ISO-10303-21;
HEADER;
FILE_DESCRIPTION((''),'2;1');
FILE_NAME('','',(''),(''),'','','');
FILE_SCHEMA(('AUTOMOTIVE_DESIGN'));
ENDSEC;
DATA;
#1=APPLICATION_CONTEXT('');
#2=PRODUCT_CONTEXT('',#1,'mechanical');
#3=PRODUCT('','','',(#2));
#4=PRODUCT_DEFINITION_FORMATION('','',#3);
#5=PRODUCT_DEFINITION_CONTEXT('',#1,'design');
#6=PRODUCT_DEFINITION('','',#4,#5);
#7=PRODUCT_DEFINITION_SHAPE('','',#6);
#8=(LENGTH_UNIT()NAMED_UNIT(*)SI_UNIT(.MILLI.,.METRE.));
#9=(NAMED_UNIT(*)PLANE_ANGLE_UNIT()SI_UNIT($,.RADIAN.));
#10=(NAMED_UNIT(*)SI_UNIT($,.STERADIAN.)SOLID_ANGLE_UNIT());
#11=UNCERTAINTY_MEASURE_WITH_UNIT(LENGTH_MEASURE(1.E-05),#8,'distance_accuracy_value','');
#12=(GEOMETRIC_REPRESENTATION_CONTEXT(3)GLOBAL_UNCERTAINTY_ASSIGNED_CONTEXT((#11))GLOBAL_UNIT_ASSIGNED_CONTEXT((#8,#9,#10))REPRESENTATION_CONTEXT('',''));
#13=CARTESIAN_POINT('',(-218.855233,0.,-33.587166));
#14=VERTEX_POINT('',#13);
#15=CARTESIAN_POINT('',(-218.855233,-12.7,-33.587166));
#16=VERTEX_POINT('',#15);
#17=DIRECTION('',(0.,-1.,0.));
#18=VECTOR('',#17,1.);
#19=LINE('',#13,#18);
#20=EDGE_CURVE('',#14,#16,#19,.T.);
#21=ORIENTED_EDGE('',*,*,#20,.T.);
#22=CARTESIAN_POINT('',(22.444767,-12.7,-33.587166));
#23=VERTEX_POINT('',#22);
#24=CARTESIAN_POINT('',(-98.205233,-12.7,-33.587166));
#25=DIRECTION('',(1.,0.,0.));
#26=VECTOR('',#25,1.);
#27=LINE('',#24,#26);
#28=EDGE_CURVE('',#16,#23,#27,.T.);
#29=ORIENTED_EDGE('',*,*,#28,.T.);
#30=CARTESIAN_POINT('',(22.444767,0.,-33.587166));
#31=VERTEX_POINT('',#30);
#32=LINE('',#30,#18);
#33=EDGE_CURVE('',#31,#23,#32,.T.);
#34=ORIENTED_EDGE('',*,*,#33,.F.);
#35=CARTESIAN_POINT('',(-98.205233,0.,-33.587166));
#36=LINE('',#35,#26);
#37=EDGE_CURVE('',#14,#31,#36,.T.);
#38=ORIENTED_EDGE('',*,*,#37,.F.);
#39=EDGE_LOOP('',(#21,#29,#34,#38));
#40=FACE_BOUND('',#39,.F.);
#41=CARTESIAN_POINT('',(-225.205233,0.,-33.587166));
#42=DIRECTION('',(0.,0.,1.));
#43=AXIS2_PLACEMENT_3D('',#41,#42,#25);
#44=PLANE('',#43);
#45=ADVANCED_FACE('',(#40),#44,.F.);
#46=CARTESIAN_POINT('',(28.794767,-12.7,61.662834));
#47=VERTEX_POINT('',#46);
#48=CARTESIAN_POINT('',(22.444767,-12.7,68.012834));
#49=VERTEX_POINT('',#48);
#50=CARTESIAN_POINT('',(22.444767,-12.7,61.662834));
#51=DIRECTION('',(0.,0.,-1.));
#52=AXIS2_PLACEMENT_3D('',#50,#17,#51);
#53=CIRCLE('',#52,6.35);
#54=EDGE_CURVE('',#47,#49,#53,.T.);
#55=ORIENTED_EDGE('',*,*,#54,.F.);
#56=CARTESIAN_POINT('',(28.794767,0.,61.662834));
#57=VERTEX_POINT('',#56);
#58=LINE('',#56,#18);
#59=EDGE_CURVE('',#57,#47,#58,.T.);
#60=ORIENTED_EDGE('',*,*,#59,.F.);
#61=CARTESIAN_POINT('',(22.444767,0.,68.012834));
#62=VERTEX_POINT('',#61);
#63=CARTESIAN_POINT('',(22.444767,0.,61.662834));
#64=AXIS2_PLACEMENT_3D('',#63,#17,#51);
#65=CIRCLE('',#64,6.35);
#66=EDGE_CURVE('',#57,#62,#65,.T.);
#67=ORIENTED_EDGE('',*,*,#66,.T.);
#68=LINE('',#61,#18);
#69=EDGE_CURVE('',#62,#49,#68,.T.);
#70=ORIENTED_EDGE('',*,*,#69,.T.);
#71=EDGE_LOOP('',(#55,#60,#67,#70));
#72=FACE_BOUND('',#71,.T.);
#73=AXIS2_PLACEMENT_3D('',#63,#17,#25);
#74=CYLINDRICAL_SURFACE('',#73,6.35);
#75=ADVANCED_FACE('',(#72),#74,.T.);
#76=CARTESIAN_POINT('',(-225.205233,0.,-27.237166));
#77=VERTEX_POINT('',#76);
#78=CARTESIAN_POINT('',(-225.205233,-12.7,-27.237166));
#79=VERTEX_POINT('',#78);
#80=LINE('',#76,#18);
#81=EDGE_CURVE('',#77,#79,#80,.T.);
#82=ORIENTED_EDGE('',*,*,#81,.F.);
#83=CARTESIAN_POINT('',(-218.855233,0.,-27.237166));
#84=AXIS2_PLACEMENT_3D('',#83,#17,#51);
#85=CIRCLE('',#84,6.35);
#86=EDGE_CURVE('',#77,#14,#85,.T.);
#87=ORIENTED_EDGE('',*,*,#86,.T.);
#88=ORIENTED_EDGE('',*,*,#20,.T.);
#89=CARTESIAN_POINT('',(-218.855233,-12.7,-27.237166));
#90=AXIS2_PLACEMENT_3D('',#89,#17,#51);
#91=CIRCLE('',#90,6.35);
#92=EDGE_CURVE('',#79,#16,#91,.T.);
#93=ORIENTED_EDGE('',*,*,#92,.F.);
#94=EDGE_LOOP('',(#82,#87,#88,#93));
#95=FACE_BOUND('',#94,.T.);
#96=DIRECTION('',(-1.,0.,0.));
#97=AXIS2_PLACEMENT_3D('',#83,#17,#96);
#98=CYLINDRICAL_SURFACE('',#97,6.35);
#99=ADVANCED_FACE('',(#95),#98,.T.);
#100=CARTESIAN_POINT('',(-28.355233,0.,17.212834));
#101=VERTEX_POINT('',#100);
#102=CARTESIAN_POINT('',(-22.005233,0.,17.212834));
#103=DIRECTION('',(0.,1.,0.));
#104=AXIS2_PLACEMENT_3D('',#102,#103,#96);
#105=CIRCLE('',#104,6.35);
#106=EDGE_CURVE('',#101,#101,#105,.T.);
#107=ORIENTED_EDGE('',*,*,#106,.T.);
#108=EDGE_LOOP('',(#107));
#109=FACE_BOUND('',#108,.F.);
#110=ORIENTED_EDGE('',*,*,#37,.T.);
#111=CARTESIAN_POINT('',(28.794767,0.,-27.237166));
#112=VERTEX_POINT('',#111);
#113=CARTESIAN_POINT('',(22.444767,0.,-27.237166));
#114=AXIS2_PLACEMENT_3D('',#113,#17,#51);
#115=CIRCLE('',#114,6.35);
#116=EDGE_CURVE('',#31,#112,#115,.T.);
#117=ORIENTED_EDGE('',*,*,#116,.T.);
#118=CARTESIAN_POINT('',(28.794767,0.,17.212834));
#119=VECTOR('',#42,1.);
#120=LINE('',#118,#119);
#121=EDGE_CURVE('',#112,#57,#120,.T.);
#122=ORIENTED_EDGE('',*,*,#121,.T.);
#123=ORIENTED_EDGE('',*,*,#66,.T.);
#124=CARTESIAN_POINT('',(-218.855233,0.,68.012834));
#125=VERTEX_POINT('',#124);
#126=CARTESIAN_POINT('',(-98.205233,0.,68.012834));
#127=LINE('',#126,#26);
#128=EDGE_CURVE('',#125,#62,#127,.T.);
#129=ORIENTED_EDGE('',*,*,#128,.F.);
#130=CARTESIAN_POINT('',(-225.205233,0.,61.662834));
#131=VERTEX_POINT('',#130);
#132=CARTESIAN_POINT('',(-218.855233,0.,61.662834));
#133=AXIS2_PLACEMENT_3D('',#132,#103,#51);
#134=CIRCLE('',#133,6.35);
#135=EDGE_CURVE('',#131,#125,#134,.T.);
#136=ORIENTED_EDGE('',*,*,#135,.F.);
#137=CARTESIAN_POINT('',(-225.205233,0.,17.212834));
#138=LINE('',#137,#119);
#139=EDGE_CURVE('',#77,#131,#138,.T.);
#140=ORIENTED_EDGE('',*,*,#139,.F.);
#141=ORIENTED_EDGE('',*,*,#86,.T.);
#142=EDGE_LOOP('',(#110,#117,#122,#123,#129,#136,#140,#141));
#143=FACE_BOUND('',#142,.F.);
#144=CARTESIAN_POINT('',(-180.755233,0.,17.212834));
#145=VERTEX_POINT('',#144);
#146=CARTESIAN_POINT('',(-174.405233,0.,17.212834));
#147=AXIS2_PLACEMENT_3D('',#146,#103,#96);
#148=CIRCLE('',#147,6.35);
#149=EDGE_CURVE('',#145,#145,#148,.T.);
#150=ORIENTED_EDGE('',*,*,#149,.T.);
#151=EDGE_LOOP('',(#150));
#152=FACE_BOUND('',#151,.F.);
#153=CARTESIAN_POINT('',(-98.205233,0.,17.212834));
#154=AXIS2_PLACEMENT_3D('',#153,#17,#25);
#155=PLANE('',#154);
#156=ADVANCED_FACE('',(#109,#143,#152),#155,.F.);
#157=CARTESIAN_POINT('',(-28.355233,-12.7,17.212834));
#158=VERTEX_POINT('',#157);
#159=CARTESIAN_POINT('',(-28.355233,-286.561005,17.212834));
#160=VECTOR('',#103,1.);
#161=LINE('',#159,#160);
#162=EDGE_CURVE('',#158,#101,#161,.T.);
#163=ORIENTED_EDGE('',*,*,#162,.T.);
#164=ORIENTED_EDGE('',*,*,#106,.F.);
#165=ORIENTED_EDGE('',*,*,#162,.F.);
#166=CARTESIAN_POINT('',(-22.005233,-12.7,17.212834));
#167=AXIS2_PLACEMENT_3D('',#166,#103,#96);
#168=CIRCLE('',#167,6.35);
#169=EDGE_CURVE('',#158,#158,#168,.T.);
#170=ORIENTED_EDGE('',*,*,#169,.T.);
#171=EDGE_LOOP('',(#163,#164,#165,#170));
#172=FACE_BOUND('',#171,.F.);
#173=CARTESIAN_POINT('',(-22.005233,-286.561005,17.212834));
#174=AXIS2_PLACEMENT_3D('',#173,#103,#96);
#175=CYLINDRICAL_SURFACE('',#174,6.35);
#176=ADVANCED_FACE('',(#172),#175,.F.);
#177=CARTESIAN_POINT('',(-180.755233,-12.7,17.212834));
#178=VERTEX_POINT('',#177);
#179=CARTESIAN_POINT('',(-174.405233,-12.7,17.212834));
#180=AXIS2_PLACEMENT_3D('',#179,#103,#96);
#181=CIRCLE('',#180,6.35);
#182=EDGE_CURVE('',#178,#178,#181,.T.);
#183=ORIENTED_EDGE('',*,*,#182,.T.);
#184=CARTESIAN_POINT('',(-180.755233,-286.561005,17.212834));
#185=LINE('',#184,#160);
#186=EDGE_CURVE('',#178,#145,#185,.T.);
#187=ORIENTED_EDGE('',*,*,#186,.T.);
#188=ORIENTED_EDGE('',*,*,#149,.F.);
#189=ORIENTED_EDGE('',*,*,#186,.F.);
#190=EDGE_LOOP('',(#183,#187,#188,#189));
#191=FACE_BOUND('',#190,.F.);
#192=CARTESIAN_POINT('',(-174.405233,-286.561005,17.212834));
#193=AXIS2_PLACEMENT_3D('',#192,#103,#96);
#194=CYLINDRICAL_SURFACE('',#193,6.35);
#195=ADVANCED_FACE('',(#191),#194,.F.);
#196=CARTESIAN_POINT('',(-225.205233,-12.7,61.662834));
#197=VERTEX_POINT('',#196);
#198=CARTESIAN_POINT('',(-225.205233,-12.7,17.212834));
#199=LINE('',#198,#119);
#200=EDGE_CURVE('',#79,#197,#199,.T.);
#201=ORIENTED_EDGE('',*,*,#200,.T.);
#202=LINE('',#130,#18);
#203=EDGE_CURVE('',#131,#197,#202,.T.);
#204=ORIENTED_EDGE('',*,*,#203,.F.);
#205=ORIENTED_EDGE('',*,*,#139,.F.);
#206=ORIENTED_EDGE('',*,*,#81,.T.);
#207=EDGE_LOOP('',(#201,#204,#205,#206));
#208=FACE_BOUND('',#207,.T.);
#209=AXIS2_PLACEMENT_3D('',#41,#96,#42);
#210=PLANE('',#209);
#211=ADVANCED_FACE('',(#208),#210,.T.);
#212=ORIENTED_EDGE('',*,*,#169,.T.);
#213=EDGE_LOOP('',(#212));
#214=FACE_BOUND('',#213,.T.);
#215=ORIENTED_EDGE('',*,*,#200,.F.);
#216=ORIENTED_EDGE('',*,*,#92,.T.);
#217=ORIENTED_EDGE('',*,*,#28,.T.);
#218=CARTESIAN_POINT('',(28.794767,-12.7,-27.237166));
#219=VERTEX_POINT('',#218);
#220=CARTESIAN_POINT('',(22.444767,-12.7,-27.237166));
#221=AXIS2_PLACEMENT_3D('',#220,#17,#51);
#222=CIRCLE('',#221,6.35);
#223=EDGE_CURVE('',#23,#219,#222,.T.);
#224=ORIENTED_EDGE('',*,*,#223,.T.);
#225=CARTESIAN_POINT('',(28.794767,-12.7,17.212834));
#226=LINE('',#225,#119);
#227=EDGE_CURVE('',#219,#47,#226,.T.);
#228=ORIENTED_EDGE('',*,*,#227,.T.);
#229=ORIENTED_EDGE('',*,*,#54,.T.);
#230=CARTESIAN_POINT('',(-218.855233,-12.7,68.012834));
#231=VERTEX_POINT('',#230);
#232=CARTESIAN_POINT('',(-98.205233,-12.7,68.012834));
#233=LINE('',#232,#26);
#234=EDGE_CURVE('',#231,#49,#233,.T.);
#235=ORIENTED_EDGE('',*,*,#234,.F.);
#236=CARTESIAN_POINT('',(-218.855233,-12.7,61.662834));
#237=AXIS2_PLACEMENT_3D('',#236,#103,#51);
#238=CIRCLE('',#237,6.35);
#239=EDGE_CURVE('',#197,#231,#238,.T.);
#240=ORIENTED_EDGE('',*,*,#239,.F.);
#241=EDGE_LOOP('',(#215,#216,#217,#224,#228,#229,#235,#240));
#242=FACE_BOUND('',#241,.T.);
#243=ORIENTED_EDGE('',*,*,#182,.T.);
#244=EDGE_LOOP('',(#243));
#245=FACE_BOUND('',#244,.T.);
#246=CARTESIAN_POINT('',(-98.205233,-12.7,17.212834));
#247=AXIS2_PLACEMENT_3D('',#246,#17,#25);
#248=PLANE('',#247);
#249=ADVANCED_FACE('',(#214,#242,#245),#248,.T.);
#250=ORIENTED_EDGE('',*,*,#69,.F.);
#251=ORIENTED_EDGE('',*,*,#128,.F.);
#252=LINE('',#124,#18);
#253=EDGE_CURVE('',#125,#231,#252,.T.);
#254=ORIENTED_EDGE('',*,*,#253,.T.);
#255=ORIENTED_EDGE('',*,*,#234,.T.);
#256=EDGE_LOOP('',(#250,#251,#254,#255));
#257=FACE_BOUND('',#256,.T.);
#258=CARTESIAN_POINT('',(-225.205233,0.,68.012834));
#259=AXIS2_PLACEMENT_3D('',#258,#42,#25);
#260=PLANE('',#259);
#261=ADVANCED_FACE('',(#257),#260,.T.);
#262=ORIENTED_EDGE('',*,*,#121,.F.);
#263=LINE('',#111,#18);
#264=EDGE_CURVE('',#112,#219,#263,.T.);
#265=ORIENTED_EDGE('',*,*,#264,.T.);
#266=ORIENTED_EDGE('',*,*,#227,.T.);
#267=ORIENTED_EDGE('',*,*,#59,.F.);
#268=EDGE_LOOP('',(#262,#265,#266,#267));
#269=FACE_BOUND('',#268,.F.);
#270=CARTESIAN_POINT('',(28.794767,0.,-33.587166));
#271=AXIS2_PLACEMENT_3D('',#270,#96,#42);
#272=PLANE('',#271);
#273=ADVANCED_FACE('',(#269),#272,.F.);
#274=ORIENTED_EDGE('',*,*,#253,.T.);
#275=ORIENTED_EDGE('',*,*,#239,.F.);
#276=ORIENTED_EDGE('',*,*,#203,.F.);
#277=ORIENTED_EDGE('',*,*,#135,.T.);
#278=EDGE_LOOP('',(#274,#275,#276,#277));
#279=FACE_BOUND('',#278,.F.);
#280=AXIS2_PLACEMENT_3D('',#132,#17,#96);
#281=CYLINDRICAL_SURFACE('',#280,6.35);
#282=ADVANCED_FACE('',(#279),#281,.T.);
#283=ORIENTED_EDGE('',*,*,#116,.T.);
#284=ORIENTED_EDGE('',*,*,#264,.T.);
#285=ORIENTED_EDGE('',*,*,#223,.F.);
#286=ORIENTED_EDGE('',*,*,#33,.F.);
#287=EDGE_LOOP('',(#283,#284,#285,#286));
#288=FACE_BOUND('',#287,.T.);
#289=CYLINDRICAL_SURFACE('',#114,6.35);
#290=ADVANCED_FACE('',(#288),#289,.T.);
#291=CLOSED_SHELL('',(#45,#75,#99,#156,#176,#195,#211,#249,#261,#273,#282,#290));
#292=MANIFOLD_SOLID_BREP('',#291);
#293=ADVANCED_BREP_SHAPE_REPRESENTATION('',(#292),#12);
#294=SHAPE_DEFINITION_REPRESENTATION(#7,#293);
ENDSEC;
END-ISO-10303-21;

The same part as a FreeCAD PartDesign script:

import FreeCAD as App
import Part
import Sketcher
from FreeCAD import Vector
Q = App.Units.Quantity


def edges_at(feature, points):
    """Names of the edges that pass closest to the given points."""
    edges = feature.Shape.Edges
    near = lambda p: min(range(len(edges)), key=lambda i: edges[i].distToShape(Part.Vertex(*p))[0])
    return sorted({f"Edge{near(p) + 1}" for p in points})

doc = App.newDocument("Part")
body = doc.addObject("PartDesign::Body", "Body")

# Sketch on XZ plane
sketch1 = doc.addObject("Sketcher::SketchObject", "Sketch")
body.addObject(sketch1)
sketch1.AttachmentSupport = (doc.XZ_Plane, [""])
sketch1.MapMode = "FlatFace"
sketch1.addGeometry(Part.LineSegment(Vector(-225, 68, 0), Vector(-225, -34, 0)), False)
sketch1.addGeometry(Part.LineSegment(Vector(-225, -34, 0), Vector(29, -34, 0)), False)
sketch1.addGeometry(Part.LineSegment(Vector(29, -34, 0), Vector(29, 68, 0)), False)
sketch1.addGeometry(Part.LineSegment(Vector(29, 68, 0), Vector(-225, 68, 0)), False)
sketch1.addConstraint(Sketcher.Constraint("Coincident", 0, 2, 1, 1))
sketch1.addConstraint(Sketcher.Constraint("Coincident", 1, 2, 2, 1))
sketch1.addConstraint(Sketcher.Constraint("Coincident", 2, 2, 3, 1))
sketch1.addConstraint(Sketcher.Constraint("Coincident", 3, 2, 0, 1))
sketch1.addConstraint(Sketcher.Constraint("Vertical", 0))
sketch1.addConstraint(Sketcher.Constraint("Horizontal", 1))
sketch1.addConstraint(Sketcher.Constraint("Vertical", 2))
sketch1.addConstraint(Sketcher.Constraint("Horizontal", 3))
sketch1.addConstraint(Sketcher.Constraint("DistanceX", 1, 1, 1, 2, Q("10 in")))
sketch1.addConstraint(Sketcher.Constraint("DistanceY", 0, 2, 0, 1, Q("4 in")))
sketch1.addConstraint(Sketcher.Constraint("DistanceX", 0, 2, -1, 1, Q("225.205233 mm")))
sketch1.addConstraint(Sketcher.Constraint("DistanceY", 0, 2, -1, 1, Q("33.587166 mm")))
pad1 = doc.addObject("PartDesign::Pad", "Pad")
body.addObject(pad1)
pad1.Profile = sketch1
pad1.Length = Q("0.5 in")
doc.recompute()

fillet = doc.addObject("PartDesign::Fillet", "Fillet")
body.addObject(fillet)
fillet.Base = (pad1, edges_at(pad1, [
    (-225.205, -6.35, 68.013),
    (28.795, -6.35, 68.013),
    (28.795, -6.35, -33.587),
    (-225.205, -6.35, -33.587),
]))
fillet.Radius = Q("0.25 in")

# Sketch on XZ plane
sketch2 = doc.addObject("Sketcher::SketchObject", "Sketch001")
body.addObject(sketch2)
sketch2.AttachmentSupport = (doc.XZ_Plane, [""])
sketch2.MapMode = "FlatFace"
sketch2.AttachmentOffset = App.Placement(Vector(0, 0, 0.5 * 25.4), App.Rotation())
sketch2.addGeometry(Part.Circle(Vector(-174, 17, 0), Vector(0, 0, 1), 6), False)
sketch2.addGeometry(Part.Circle(Vector(-22, 17, 0), Vector(0, 0, 1), 6), False)
sketch2.addConstraint(Sketcher.Constraint("Equal", 0, 1))
sketch2.addConstraint(Sketcher.Constraint("Horizontal", 0, 3, 1, 3))
sketch2.addConstraint(Sketcher.Constraint("Diameter", 0, Q("0.5 in")))
sketch2.addConstraint(Sketcher.Constraint("DistanceX", 0, 3, 1, 3, Q("6 in")))
sketch2.addConstraint(Sketcher.Constraint("DistanceX", 0, 3, -1, 1, Q("174.405233 mm")))
sketch2.addConstraint(Sketcher.Constraint("DistanceY", -1, 1, 0, 3, Q("17.212834 mm")))
doc.recompute()
hole = doc.addObject("PartDesign::Hole", "Hole")
body.addObject(hole)
hole.Profile = sketch2
hole.ThreadType = "None"
hole.Diameter = Q("0.5 in")
hole.DepthType = "ThroughAll"

doc.recompute()
